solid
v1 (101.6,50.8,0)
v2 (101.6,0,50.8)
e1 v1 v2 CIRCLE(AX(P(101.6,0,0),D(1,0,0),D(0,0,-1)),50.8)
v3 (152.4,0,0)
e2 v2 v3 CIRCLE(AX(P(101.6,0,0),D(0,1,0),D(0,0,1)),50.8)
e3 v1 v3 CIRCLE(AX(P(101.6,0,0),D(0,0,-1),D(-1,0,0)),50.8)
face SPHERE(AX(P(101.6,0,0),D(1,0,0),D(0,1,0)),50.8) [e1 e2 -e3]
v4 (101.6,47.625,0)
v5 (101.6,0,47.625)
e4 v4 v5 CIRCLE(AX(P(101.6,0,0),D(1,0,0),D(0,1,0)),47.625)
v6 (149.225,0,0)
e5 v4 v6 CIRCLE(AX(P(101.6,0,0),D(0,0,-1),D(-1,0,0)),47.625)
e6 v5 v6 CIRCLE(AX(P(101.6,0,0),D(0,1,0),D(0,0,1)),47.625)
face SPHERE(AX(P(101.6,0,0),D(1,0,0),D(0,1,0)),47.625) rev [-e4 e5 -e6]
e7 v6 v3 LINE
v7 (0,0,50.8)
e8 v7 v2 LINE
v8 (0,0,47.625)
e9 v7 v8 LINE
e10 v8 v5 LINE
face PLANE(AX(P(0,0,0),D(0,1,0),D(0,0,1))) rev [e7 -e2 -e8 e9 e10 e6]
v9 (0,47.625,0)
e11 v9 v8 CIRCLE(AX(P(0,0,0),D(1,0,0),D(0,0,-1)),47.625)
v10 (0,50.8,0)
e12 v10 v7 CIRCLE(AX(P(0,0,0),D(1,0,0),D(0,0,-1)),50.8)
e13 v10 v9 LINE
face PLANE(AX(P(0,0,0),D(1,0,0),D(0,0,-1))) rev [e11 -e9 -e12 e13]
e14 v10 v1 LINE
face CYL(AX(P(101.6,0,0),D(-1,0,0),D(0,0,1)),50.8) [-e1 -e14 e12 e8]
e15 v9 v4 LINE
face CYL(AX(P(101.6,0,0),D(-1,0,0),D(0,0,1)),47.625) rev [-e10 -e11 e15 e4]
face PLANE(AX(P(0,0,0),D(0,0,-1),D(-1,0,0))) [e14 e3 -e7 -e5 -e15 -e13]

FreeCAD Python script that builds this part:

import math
import FreeCAD as App
import Part
import Sketcher

V = App.Vector
Q = App.Units.Quantity


def add_polygon(sketch, points):
    """Adds a closed chain of lines whose ends are joined by coincident constraints."""
    first, n = sketch.GeometryCount, len(points)
    for a, b in zip(points, points[1:] + points[:1]):
        sketch.addGeometry(Part.LineSegment(App.Vector(*a, 0), App.Vector(*b, 0)), False)
    for i in range(n):
        sketch.addConstraint(Sketcher.Constraint("Coincident", first + i, 2, first + (i + 1) % n, 1))

doc = App.newDocument("Part")
body = doc.addObject("PartDesign::Body", "Body")

# Sketch on YZ plane
sketch1 = body.newObject("Sketcher::SketchObject", "Sketch")
sketch1.AttachmentSupport = (doc.getObject("YZ_Plane"), [""])
sketch1.MapMode = "FlatFace"
sketch1.addGeometry(Part.Circle(V(0, 0, 0), V(0, 0, 1), 51), False)
sketch1.addConstraint([
    Sketcher.Constraint("Coincident", 0, 3, -1, 1),
    Sketcher.Constraint("Diameter", 0, Q("4 in")),
])
pad1 = body.newObject("PartDesign::Pad", "Pad")
pad1.Profile = sketch1
pad1.Length = Q("8 in")
pad1.Midplane = True

# Sketch on YZ plane
sketch2 = body.newObject("Sketcher::SketchObject", "Sketch001")
sketch2.AttachmentSupport = (doc.getObject("YZ_Plane"), [""])
sketch2.MapMode = "FlatFace"
sketch2.addGeometry(Part.Circle(V(0, 0, 0), V(0, 0, 1), 48), False)
sketch2.addConstraint([
    Sketcher.Constraint("Coincident", 0, 3, -1, 1),
    Sketcher.Constraint("Diameter", 0, Q("3.75 in")),
])
pocket1 = body.newObject("PartDesign::Pocket", "Pocket")
pocket1.Profile = sketch2
pocket1.Length = Q("8 in")
pocket1.Midplane = True

# Sketch on XY plane
sketch3 = body.newObject("Sketcher::SketchObject", "Sketch002")
sketch3.AttachmentSupport = (doc.getObject("XY_Plane"), [""])
sketch3.MapMode = "FlatFace"
sketch3.addGeometry([
    Part.ArcOfCircle(Part.Circle(V(-101.6, 0, 0), V(0, 0, 1), 50.8), math.radians(90), math.radians(180)),
    Part.LineSegment(V(-152.4, 0, 0), V(-149.2, 0, 0)),
    Part.ArcOfCircle(Part.Circle(V(-101.6, 0, 0), V(0, 0, 1), 47.6), math.radians(90), math.radians(180)),
    Part.LineSegment(V(-101.6, 47.6, 0), V(-101.6, 50.8, 0)),
], False)
sketch3.addConstraint([
    Sketcher.Constraint("Coincident", 0, 2, 1, 1),
    Sketcher.Constraint("Coincident", 1, 2, 2, 2),
    Sketcher.Constraint("Coincident", 2, 1, 3, 1),
    Sketcher.Constraint("Coincident", 3, 2, 0, 1),
    Sketcher.Constraint("Horizontal", 1),
    Sketcher.Constraint("Vertical", 3),
    Sketcher.Constraint("Coincident", 2, 3, 0, 3),
    Sketcher.Constraint("PointOnObject", 0, 3, -1),
    Sketcher.Constraint("PointOnObject", 0, 2, -1),
    Sketcher.Constraint("Vertical", 0, 3, 2, 1),
    Sketcher.Constraint("Radius", 0, Q("2 in")),
    Sketcher.Constraint("DistanceX", 0, 3, -1, 1, Q("4 in")),
    Sketcher.Constraint("Radius", 2, Q("1.875 in")),
])
revolution = body.newObject("PartDesign::Revolution", "Revolution")
revolution.Profile = sketch3
revolution.ReferenceAxis = (sketch3, ["H_Axis"])
revolution.Angle = 360

# Sketch on XY plane
sketch4 = body.newObject("Sketcher::SketchObject", "Sketch003")
sketch4.AttachmentSupport = (doc.getObject("XY_Plane"), [""])
sketch4.MapMode = "FlatFace"
sketch4.addGeometry([
    Part.ArcOfCircle(Part.Circle(V(101.6, 0, 0), V(0, 0, 1), 50.8), math.radians(0), math.radians(90)),
    Part.LineSegment(V(101.6, 50.8, 0), V(101.6, 47.6, 0)),
    Part.ArcOfCircle(Part.Circle(V(101.6, 0, 0), V(0, 0, 1), 47.6), math.radians(0), math.radians(90)),
    Part.LineSegment(V(149.2, 0, 0), V(152.4, 0, 0)),
], False)
sketch4.addConstraint([
    Sketcher.Constraint("Coincident", 0, 2, 1, 1),
    Sketcher.Constraint("Coincident", 1, 2, 2, 2),
    Sketcher.Constraint("Coincident", 2, 1, 3, 1),
    Sketcher.Constraint("Coincident", 3, 2, 0, 1),
    Sketcher.Constraint("Vertical", 1),
    Sketcher.Constraint("Horizontal", 3),
    Sketcher.Constraint("Coincident", 2, 3, 0, 3),
    Sketcher.Constraint("PointOnObject", 0, 3, -1),
    Sketcher.Constraint("PointOnObject", 2, 1, -1),
    Sketcher.Constraint("Vertical", 2, 3, 0, 2),
    Sketcher.Constraint("Radius", 0, Q("2 in")),
    Sketcher.Constraint("DistanceX", -1, 1, 0, 3, Q("4 in")),
    Sketcher.Constraint("Radius", 2, Q("1.875 in")),
])
revolution2 = body.newObject("PartDesign::Revolution", "Revolution001")
revolution2.Profile = sketch4
revolution2.ReferenceAxis = (sketch4, ["H_Axis"])
revolution2.Angle = 360

# Sketch on XY plane
sketch5 = body.newObject("Sketcher::SketchObject", "Sketch004")
sketch5.AttachmentSupport = (doc.getObject("XY_Plane"), [""])
sketch5.MapMode = "FlatFace"
add_polygon(sketch5, [(-485, 921), (-485, -984), (2436, -984), (2436, 921)])  # lines 0-3
sketch5.addConstraint([
    Sketcher.Constraint("Vertical", 0),
    Sketcher.Constraint("Horizontal", 1),
    Sketcher.Constraint("Vertical", 2),
    Sketcher.Constraint("Horizontal", 3),
    Sketcher.Constraint("DistanceX", 1, 1, 1, 2, Q("115 in")),
    Sketcher.Constraint("DistanceY", 0, 2, 0, 1, Q("75 in")),
    Sketcher.Constraint("DistanceX", 0, 2, -1, 1, Q("485.22276 mm")),
    Sketcher.Constraint("DistanceY", 0, 2, -1, 1, Q("983.813734 mm")),
])
pocket2 = body.newObject("PartDesign::Pocket", "Pocket001")
pocket2.Profile = sketch5
pocket2.Length = Q("72 in")

# Sketch on XZ plane
sketch6 = body.newObject("Sketcher::SketchObject", "Sketch005")
sketch6.AttachmentSupport = (doc.getObject("XZ_Plane"), [""])
sketch6.MapMode = "FlatFace"
add_polygon(sketch6, [(-554, -500), (-554, 770), (2360, 770), (2360, -500)])  # lines 0-3
sketch6.addConstraint([
    Sketcher.Constraint("Vertical", 0),
    Sketcher.Constraint("Horizontal", 1),
    Sketcher.Constraint("Vertical", 2),
    Sketcher.Constraint("Horizontal", 3),
    Sketcher.Constraint("DistanceX", 1, 1, 1, 2, Q("2914.398268 mm")),
    Sketcher.Constraint("DistanceY", 0, 1, 0, 2, Q("1269.930665 mm")),
    Sketcher.Constraint("DistanceX", 0, 2, -1, 1, Q("554.229681 mm")),
    Sketcher.Constraint("DistanceY", -1, 1, 0, 2, Q("769.90386 mm")),
])
pocket3 = body.newObject("PartDesign::Pocket", "Pocket002")
pocket3.Profile = sketch6
pocket3.Length = Q("20 in")
pocket3.Reversed = True

# Sketch on YZ plane
sketch7 = body.newObject("Sketcher::SketchObject", "Sketch006")
sketch7.AttachmentSupport = (doc.getObject("YZ_Plane"), [""])
sketch7.MapMode = "FlatFace"
add_polygon(sketch7, [(150, 185), (-83, 185), (-83, -97), (150, -97)])  # lines 0-3
sketch7.addConstraint([
    Sketcher.Constraint("Horizontal", 0),
    Sketcher.Constraint("Vertical", 1),
    Sketcher.Constraint("Horizontal", 2),
    Sketcher.Constraint("Vertical", 3),
    Sketcher.Constraint("DistanceY", 1, 2, -1, 1, Q("97.146701 mm")),
    Sketcher.Constraint("DistanceX", 0, 2, 0, 1, Q("233.276474 mm")),
    Sketcher.Constraint("DistanceY", 1, 2, 1, 1, Q("281.911463 mm")),
    Sketcher.Constraint("DistanceX", 0, 2, -1, 1, Q("83.066248 mm")),
])
pocket4 = body.newObject("PartDesign::Pocket", "Pocket003")
pocket4.Profile = sketch7
pocket4.Type = "ThroughAll"

doc.recompute()
